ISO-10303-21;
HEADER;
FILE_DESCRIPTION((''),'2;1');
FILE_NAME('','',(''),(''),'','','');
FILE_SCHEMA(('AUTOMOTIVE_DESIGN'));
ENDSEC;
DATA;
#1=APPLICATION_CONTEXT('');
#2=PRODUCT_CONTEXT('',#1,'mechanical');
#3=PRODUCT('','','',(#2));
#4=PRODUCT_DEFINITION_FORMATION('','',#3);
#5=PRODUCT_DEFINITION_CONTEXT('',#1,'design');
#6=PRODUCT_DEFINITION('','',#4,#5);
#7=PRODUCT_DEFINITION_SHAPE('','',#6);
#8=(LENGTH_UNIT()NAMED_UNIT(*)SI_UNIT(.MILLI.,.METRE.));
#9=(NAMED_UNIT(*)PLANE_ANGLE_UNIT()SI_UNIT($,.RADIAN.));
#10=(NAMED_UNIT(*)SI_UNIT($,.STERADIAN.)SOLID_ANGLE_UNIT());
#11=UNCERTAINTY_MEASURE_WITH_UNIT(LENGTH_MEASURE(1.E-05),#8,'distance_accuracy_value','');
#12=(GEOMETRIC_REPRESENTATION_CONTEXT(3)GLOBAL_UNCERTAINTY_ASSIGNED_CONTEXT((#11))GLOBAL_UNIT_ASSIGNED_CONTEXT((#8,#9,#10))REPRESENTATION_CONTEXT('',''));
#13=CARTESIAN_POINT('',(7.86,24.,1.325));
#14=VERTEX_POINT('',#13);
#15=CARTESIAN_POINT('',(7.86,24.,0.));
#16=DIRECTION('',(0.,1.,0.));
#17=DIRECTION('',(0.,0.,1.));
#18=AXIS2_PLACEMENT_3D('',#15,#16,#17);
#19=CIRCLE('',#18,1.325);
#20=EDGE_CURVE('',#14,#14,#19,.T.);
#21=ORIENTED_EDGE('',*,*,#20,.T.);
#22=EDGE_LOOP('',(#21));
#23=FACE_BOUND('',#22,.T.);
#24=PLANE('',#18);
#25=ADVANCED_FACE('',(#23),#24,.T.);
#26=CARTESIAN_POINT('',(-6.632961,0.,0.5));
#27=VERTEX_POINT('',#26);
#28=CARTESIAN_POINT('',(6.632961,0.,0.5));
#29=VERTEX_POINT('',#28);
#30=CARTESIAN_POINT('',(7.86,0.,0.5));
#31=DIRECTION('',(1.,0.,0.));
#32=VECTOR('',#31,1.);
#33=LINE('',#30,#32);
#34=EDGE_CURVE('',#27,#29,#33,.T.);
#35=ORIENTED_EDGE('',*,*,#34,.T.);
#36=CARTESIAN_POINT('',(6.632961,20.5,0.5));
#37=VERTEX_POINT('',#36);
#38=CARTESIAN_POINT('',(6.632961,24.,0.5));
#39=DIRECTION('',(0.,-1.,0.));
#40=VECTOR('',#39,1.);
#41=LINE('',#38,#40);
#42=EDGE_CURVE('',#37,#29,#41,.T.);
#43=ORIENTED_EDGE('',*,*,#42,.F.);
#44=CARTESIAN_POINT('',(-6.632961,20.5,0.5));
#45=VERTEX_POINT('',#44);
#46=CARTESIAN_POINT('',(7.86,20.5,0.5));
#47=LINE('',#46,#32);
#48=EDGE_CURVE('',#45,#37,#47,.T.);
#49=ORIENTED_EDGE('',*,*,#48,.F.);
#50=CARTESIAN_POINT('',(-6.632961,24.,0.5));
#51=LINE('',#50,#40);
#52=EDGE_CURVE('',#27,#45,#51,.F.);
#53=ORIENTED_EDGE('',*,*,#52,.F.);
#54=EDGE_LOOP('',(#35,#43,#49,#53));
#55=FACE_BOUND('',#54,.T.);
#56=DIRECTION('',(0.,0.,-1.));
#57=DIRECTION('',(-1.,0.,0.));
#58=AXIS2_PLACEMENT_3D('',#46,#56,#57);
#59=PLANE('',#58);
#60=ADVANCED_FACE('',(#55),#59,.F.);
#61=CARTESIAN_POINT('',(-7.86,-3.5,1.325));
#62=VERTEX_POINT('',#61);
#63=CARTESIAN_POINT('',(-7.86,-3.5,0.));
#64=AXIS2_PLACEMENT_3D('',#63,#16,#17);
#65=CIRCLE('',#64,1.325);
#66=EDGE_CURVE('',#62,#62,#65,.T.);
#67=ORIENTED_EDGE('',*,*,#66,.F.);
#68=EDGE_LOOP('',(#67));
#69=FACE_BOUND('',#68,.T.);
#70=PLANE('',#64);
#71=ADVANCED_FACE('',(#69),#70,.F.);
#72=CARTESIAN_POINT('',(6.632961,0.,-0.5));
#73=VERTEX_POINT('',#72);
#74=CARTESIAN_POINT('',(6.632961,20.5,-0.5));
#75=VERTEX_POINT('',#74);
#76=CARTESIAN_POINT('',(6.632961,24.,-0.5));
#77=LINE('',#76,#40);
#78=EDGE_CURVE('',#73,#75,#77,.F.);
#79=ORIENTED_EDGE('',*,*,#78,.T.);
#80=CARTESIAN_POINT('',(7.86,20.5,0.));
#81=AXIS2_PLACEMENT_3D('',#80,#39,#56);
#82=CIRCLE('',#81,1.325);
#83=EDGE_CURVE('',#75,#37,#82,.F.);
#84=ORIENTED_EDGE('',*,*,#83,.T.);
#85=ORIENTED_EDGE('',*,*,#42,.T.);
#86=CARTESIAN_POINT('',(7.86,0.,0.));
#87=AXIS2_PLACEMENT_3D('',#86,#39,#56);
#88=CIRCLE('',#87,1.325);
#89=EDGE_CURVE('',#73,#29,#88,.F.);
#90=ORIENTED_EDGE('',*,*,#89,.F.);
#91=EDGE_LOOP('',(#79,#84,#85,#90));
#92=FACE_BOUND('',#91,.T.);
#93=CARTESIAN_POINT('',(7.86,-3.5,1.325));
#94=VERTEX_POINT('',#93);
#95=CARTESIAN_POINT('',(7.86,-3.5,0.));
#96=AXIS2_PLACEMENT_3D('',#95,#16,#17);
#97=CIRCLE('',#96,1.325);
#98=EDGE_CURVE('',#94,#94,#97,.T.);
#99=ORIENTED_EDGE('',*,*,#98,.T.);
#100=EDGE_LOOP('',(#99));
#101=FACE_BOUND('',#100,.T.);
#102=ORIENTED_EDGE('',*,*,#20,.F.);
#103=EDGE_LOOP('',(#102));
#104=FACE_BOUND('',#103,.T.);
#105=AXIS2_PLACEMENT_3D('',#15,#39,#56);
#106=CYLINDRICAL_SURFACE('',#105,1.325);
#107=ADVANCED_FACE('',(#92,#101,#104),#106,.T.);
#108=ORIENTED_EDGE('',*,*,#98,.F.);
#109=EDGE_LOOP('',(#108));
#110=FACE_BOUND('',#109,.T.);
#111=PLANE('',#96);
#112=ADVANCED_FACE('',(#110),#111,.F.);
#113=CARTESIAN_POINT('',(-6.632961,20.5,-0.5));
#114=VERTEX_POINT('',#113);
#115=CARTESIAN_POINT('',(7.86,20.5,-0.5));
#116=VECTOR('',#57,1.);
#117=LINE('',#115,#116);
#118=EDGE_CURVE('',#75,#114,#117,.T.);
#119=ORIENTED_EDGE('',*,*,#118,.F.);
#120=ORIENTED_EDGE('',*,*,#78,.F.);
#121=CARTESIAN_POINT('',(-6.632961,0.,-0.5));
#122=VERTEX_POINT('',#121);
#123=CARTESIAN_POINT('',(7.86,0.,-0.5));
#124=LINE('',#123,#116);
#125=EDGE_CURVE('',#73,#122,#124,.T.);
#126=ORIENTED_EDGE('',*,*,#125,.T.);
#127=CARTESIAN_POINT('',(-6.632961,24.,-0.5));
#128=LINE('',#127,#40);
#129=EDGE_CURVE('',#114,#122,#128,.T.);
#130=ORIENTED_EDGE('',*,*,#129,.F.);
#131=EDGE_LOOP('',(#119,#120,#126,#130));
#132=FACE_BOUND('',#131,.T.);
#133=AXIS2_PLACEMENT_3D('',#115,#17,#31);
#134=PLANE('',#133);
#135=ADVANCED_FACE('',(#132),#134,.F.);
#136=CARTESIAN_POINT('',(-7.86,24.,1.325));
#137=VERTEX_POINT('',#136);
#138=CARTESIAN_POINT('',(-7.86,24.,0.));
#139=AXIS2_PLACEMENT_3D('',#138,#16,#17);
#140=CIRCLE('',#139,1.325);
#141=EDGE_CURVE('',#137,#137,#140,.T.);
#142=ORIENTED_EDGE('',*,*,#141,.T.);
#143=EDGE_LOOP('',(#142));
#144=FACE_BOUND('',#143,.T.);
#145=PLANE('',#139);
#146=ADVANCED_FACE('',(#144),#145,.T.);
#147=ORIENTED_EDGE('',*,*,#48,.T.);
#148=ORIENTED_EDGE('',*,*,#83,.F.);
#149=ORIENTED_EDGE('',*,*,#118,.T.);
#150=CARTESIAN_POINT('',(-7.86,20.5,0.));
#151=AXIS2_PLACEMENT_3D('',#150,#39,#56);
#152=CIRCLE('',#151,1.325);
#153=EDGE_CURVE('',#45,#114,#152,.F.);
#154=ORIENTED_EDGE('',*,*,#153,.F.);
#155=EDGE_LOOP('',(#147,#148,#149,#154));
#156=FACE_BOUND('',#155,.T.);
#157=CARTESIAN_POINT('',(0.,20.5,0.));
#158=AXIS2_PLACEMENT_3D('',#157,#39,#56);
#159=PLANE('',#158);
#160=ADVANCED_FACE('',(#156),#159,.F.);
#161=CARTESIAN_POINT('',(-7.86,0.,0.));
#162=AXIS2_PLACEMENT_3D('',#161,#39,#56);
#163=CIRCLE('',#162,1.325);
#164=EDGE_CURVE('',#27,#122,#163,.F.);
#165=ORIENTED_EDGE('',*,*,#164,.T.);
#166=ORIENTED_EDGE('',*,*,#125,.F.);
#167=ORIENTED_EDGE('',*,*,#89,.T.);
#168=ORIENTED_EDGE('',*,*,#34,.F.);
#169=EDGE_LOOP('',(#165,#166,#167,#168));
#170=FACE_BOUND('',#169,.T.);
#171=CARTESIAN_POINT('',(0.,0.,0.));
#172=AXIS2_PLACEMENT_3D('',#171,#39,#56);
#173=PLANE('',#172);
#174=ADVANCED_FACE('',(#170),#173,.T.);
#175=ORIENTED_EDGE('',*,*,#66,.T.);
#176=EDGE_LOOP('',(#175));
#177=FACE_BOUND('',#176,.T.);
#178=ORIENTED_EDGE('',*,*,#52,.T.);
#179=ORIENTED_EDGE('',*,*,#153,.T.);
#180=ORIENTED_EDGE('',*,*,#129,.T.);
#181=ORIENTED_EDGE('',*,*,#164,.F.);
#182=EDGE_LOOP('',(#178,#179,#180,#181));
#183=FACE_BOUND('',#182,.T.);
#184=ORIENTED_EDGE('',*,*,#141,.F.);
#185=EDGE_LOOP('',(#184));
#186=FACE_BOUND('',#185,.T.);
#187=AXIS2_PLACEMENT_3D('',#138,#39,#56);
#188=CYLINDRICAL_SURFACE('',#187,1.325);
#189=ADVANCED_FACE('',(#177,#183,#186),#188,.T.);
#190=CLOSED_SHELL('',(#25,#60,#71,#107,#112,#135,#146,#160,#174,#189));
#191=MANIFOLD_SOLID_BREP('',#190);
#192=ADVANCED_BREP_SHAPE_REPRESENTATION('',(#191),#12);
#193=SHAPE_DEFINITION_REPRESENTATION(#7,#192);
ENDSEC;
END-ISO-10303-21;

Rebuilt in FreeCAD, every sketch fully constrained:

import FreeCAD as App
import Part
import Sketcher

V = App.Vector

doc = App.newDocument("Part")
body = doc.addObject("PartDesign::Body", "Body")

# Sketch on XZ plane
sketch1 = body.newObject("Sketcher::SketchObject", "Sketch")
sketch1.AttachmentSupport = (doc.getObject("XZ_Plane"), [""])
sketch1.MapMode = "FlatFace"
sketch1.addGeometry([
    Part.LineSegment(V(-7.9, -0.5, 0), V(-7.9, 0.5, 0)),
    Part.LineSegment(V(-7.9, 0.5, 0), V(7.9, 0.5, 0)),
    Part.LineSegment(V(7.9, 0.5, 0), V(7.9, -0.5, 0)),
    Part.LineSegment(V(7.9, -0.5, 0), V(-7.9, -0.5, 0)),
], False)
sketch1.addConstraint([
    Sketcher.Constraint("Coincident", 0, 2, 1, 1),
    Sketcher.Constraint("Coincident", 1, 2, 2, 1),
    Sketcher.Constraint("Coincident", 2, 2, 3, 1),
    Sketcher.Constraint("Coincident", 3, 2, 0, 1),
    Sketcher.Constraint("Vertical", 0),
    Sketcher.Constraint("Horizontal", 1),
    Sketcher.Constraint("Vertical", 2),
    Sketcher.Constraint("Horizontal", 3),
    Sketcher.Constraint("Symmetric", 0, 2, 2, 2, -1, 1),
    Sketcher.Constraint("DistanceY", 0, 1, 0, 2, 1.0),
    Sketcher.Constraint("DistanceX", 1, 1, 1, 2, 15.72),
])
pad1 = body.newObject("PartDesign::Pad", "Pad")
pad1.Profile = sketch1
pad1.Length = 20.5
pad1.Reversed = True

# Sketch on XZ plane
sketch2 = body.newObject("Sketcher::SketchObject", "Sketch001")
sketch2.AttachmentSupport = (doc.getObject("XZ_Plane"), [""])
sketch2.MapMode = "FlatFace"
sketch2.AttachmentOffset = App.Placement(V(0, 0, -10.25), App.Rotation())
sketch2.addGeometry([
    Part.Circle(V(-7.9, 0, 0), V(0, 0, 1), 1.3),
    Part.Circle(V(7.9, 0, 0), V(0, 0, 1), 1.3),
], False)
sketch2.addConstraint([
    Sketcher.Constraint("Equal", 0, 1),
    Sketcher.Constraint("Symmetric", 0, 3, 1, 3, -1, 1),
    Sketcher.Constraint("PointOnObject", 0, 3, -1),
    Sketcher.Constraint("Diameter", 0, 2.65),
    Sketcher.Constraint("DistanceX", 0, 3, -1, 1, 7.86),
])
pad2 = body.newObject("PartDesign::Pad", "Pad001")
pad2.Profile = sketch2
pad2.Length = 27.5
pad2.Midplane = True

doc.recompute()
